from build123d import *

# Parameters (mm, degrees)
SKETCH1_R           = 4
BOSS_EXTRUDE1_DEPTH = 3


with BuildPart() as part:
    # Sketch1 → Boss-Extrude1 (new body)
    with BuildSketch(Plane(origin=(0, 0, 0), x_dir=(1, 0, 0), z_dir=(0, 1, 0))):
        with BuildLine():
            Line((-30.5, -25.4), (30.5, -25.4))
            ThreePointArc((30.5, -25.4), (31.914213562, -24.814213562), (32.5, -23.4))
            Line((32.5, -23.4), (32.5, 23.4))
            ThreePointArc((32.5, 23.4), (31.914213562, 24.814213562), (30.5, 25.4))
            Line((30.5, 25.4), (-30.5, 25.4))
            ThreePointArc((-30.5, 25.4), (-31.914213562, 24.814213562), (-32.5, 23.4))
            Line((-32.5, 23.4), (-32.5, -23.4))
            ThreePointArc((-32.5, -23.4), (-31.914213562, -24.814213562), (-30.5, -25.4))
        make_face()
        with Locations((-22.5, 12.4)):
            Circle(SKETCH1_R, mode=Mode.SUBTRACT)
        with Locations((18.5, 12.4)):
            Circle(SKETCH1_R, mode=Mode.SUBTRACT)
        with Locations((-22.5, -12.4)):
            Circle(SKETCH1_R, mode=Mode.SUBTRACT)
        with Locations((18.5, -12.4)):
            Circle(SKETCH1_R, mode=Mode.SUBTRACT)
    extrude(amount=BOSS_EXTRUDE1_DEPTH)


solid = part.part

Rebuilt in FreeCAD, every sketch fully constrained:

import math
import FreeCAD as App
import Part
import Sketcher
from FreeCAD import Vector
Q = App.Units.Quantity

doc = App.newDocument("Part")
params = doc.addObject("Spreadsheet::Sheet", "Params")
for row, (alias, value) in enumerate([
    ("sketch1_diameter", "8 mm"),
    ("sketch1_radius", "2 mm"),
    ("sketch1_width", "61 mm"),
    ("sketch1_height", "46.8 mm"),
    ("pad1_length", "3 mm"),
], start=1):
    params.set(f"A{row}", alias)
    params.set(f"B{row}", "=" + value)
    params.setAlias(f"B{row}", alias)

body = doc.addObject("PartDesign::Body", "Body")

# Sketch on XZ plane
sketch1 = doc.addObject("Sketcher::SketchObject", "Sketch")
body.addObject(sketch1)
sketch1.AttachmentSupport = (doc.XZ_Plane, [""])
sketch1.MapMode = "FlatFace"
sketch1.addGeometry([
    Part.LineSegment(Vector(-30.5, 25.4, 0), Vector(30.5, 25.4, 0)),  # 0
    Part.ArcOfCircle(Part.Circle(Vector(30.5, 23.4, 0), Vector(0, 0, 1), 2), math.radians(0), math.radians(90)),  # 1
    Part.LineSegment(Vector(32.5, 23.4, 0), Vector(32.5, -23.4, 0)),  # 2
    Part.ArcOfCircle(Part.Circle(Vector(30.5, -23.4, 0), Vector(0, 0, 1), 2), math.radians(-90), math.radians(0)),  # 3
    Part.LineSegment(Vector(30.5, -25.4, 0), Vector(-30.5, -25.4, 0)),  # 4
    Part.ArcOfCircle(Part.Circle(Vector(-30.5, -23.4, 0), Vector(0, 0, 1), 2), math.radians(-180), math.radians(-90)),  # 5
    Part.LineSegment(Vector(-32.5, -23.4, 0), Vector(-32.5, 23.4, 0)),  # 6
    Part.ArcOfCircle(Part.Circle(Vector(-30.5, 23.4, 0), Vector(0, 0, 1), 2), math.radians(90), math.radians(180)),  # 7
    Part.Circle(Vector(-22.5, 12.4, 0), Vector(0, 0, 1), 4),  # 8
    Part.Circle(Vector(18.5, 12.4, 0), Vector(0, 0, 1), 4),  # 9
    Part.Circle(Vector(-22.5, -12.4, 0), Vector(0, 0, 1), 4),  # 10
    Part.Circle(Vector(18.5, -12.4, 0), Vector(0, 0, 1), 4),  # 11
], False)
sketch1.addConstraint([
    Sketcher.Constraint("Tangent", 0, 2, 1, 2),
    Sketcher.Constraint("Tangent", 1, 1, 2, 1),
    Sketcher.Constraint("Tangent", 2, 2, 3, 2),
    Sketcher.Constraint("Tangent", 3, 1, 4, 1),
    Sketcher.Constraint("Tangent", 4, 2, 5, 2),
    Sketcher.Constraint("Tangent", 5, 1, 6, 1),
    Sketcher.Constraint("Tangent", 6, 2, 7, 2),
    Sketcher.Constraint("Tangent", 7, 1, 0, 1),
    Sketcher.Constraint("Horizontal", 0),
    Sketcher.Constraint("Vertical", 2),
    Sketcher.Constraint("Horizontal", 4),
    Sketcher.Constraint("Vertical", 6),
    Sketcher.Constraint("Equal", 1, 3),
    Sketcher.Constraint("Equal", 3, 5),
    Sketcher.Constraint("Equal", 5, 7),
    Sketcher.Constraint("Equal", 8, 9),
    Sketcher.Constraint("Equal", 9, 10),
    Sketcher.Constraint("Equal", 10, 11),
    Sketcher.Constraint("Symmetric", 1, 3, 5, 3, -1, 1),
    Sketcher.Constraint("Symmetric", 8, 3, 10, 3, -1),
    Sketcher.Constraint("Symmetric", 9, 3, 11, 3, -1),
    Sketcher.Constraint("Horizontal", 8, 3, 9, 3),
    Sketcher.Constraint("Diameter", 8, Q("8 mm")),
    Sketcher.Constraint("Radius", 1, Q("2 mm")),
    Sketcher.Constraint("DistanceX", 0, 1, 0, 2, Q("61 mm")),
    Sketcher.Constraint("DistanceY", 2, 2, 2, 1, Q("46.8 mm")),
    Sketcher.Constraint("DistanceX", 7, 3, 8, 3, Q("8 mm")),
    Sketcher.Constraint("DistanceY", 8, 3, 7, 3, Q("11 mm")),
    Sketcher.Constraint("DistanceX", 9, 3, 1, 3, Q("12 mm")),
])
sketch1.setExpression("Constraints[22]", "Params.sketch1_diameter")
sketch1.setExpression("Constraints[23]", "Params.sketch1_radius")
sketch1.setExpression("Constraints[24]", "Params.sketch1_width")
sketch1.setExpression("Constraints[25]", "Params.sketch1_height")
pad1 = doc.addObject("PartDesign::Pad", "Pad")
body.addObject(pad1)
pad1.Profile = sketch1
pad1.setExpression("Length", "Params.pad1_length")
pad1.Reversed = True

doc.recompute()
